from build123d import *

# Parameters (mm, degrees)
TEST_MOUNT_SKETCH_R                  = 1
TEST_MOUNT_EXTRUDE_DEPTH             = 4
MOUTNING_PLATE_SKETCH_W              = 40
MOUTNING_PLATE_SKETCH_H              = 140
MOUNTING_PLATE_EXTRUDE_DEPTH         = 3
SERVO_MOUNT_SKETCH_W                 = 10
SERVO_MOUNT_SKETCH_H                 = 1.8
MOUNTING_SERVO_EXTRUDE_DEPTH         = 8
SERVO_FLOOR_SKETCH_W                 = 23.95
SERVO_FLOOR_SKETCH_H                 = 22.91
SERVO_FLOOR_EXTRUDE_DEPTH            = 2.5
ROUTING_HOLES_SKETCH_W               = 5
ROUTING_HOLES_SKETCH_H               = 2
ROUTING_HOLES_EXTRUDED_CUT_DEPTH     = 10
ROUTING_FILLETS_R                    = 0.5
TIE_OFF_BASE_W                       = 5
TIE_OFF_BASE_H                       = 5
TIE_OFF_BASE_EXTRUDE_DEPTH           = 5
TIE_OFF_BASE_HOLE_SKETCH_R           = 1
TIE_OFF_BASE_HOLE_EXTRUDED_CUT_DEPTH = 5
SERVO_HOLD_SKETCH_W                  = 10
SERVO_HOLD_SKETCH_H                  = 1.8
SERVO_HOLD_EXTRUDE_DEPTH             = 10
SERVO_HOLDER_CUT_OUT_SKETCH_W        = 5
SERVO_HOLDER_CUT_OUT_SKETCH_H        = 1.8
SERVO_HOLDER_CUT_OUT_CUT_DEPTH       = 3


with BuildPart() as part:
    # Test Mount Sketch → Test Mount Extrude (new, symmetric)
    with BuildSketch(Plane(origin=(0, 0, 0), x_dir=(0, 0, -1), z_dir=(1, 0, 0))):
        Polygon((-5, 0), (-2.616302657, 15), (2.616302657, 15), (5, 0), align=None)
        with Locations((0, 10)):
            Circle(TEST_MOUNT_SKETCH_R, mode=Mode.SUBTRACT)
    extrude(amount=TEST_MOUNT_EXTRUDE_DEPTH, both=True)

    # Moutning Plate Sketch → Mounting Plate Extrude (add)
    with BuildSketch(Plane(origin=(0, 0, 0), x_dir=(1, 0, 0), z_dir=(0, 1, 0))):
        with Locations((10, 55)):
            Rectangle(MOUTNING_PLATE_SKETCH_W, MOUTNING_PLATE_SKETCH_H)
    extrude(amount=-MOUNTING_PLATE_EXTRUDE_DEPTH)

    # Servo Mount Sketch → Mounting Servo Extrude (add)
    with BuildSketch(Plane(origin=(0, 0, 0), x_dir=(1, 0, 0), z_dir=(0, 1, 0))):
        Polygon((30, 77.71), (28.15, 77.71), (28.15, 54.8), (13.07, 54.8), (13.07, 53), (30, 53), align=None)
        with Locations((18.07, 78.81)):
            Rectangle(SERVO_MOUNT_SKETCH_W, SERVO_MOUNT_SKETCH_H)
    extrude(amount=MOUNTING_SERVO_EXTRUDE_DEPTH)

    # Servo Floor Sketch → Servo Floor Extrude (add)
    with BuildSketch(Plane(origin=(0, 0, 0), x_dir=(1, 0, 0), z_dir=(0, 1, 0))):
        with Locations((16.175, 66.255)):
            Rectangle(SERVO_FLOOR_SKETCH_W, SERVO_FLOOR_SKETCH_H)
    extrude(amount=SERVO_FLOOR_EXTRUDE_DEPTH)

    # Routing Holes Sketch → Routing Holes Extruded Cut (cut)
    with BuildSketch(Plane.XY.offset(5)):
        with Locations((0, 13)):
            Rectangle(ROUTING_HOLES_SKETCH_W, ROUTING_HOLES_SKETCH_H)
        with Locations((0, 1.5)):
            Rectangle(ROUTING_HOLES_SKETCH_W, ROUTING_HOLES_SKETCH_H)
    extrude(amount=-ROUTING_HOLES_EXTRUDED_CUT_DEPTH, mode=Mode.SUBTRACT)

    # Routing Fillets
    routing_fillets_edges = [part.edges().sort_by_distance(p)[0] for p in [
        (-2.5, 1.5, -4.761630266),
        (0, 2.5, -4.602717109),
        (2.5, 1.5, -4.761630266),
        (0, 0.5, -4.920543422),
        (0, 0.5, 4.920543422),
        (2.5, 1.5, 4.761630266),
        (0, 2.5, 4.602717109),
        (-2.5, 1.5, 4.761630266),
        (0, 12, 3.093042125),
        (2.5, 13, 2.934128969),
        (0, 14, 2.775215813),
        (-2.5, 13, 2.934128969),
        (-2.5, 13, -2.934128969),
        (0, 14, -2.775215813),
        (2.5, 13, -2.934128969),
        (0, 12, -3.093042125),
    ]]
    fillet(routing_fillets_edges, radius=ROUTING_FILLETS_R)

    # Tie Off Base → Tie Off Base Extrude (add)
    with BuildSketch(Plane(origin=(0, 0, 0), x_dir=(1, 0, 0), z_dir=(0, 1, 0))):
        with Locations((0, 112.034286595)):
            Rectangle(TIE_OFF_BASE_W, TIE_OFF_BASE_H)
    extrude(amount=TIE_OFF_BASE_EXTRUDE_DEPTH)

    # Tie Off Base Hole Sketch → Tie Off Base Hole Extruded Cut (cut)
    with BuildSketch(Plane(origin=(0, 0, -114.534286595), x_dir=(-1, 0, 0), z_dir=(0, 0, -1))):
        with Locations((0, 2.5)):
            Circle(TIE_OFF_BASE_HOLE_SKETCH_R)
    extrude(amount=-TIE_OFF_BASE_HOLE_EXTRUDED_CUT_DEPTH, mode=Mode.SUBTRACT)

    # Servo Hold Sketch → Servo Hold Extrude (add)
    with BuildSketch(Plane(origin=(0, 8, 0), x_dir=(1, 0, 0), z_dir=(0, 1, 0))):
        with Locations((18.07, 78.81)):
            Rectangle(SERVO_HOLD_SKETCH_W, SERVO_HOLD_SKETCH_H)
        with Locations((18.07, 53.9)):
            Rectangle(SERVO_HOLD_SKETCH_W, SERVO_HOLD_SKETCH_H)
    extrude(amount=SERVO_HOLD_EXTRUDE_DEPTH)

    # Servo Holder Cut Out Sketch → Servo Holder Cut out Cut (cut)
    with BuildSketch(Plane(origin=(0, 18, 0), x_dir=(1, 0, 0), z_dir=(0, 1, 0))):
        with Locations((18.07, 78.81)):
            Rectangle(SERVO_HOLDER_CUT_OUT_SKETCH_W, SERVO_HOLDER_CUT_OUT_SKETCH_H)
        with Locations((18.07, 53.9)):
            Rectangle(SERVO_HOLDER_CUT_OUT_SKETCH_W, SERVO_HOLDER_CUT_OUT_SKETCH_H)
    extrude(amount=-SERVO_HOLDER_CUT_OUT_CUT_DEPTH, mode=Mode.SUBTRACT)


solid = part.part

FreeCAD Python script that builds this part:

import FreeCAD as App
import Part
import Sketcher
from FreeCAD import Vector


def edges_at(feature, points):
    """Names of the edges that pass closest to the given points."""
    edges = feature.Shape.Edges
    near = lambda p: min(range(len(edges)), key=lambda i: edges[i].distToShape(Part.Vertex(*p))[0])
    return sorted({f"Edge{near(p) + 1}" for p in points})

doc = App.newDocument("Part")
body = doc.addObject("PartDesign::Body", "Body")

# Sketch on YZ plane
sketch1 = body.newObject("Sketcher::SketchObject", "Sketch")
sketch1.AttachmentSupport = (doc.getObject("YZ_Plane"), [""])
sketch1.MapMode = "FlatFace"
sketch1.addGeometry(Part.LineSegment(Vector(15, 2.6, 0), Vector(0, 5, 0)), False)
sketch1.addGeometry(Part.LineSegment(Vector(0, 5, 0), Vector(0, -5, 0)), False)
sketch1.addGeometry(Part.LineSegment(Vector(0, -5, 0), Vector(15, -2.6, 0)), False)
sketch1.addGeometry(Part.LineSegment(Vector(15, -2.6, 0), Vector(15, 2.6, 0)), False)
sketch1.addGeometry(Part.Circle(Vector(10, 0, 0), Vector(0, 0, 1), 1), False)
sketch1.addConstraint(Sketcher.Constraint("Coincident", 0, 2, 1, 1))
sketch1.addConstraint(Sketcher.Constraint("Coincident", 1, 2, 2, 1))
sketch1.addConstraint(Sketcher.Constraint("Coincident", 2, 2, 3, 1))
sketch1.addConstraint(Sketcher.Constraint("Coincident", 3, 2, 0, 1))
sketch1.addConstraint(Sketcher.Constraint("Vertical", 1))
sketch1.addConstraint(Sketcher.Constraint("Vertical", 3))
sketch1.addConstraint(Sketcher.Constraint("Symmetric", 0, 2, 1, 2, -1, 1))
sketch1.addConstraint(Sketcher.Constraint("PointOnObject", 4, 3, -1))
sketch1.addConstraint(Sketcher.Constraint("Equal", 0, 2))
sketch1.addConstraint(Sketcher.Constraint("Diameter", 4, 2.0))
sketch1.addConstraint(Sketcher.Constraint("DistanceY", 1, 2, 1, 1, 10.0))
sketch1.addConstraint(Sketcher.Constraint("DistanceX", -1, 1, 4, 3, 10.0))
sketch1.addConstraint(Sketcher.Constraint("DistanceX", -1, 1, 2, 2, 15.0))
sketch1.addConstraint(Sketcher.Constraint("Distance", 0, 15.18822))
pad1 = body.newObject("PartDesign::Pad", "Pad")
pad1.Profile = sketch1
pad1.Length = 8
pad1.Midplane = True

# Sketch on XZ plane
sketch2 = body.newObject("Sketcher::SketchObject", "Sketch001")
sketch2.AttachmentSupport = (doc.getObject("XZ_Plane"), [""])
sketch2.MapMode = "FlatFace"
sketch2.addGeometry(Part.LineSegment(Vector(-10, -125, 0), Vector(-10, 15, 0)), False)
sketch2.addGeometry(Part.LineSegment(Vector(-10, 15, 0), Vector(30, 15, 0)), False)
sketch2.addGeometry(Part.LineSegment(Vector(30, 15, 0), Vector(30, -125, 0)), False)
sketch2.addGeometry(Part.LineSegment(Vector(30, -125, 0), Vector(-10, -125, 0)), False)
sketch2.addConstraint(Sketcher.Constraint("Coincident", 0, 2, 1, 1))
sketch2.addConstraint(Sketcher.Constraint("Coincident", 1, 2, 2, 1))
sketch2.addConstraint(Sketcher.Constraint("Coincident", 2, 2, 3, 1))
sketch2.addConstraint(Sketcher.Constraint("Coincident", 3, 2, 0, 1))
sketch2.addConstraint(Sketcher.Constraint("Vertical", 0))
sketch2.addConstraint(Sketcher.Constraint("Horizontal", 1))
sketch2.addConstraint(Sketcher.Constraint("Vertical", 2))
sketch2.addConstraint(Sketcher.Constraint("Horizontal", 3))
sketch2.addConstraint(Sketcher.Constraint("DistanceX", 1, 1, 1, 2, 40.0))
sketch2.addConstraint(Sketcher.Constraint("DistanceY", 0, 1, 0, 2, 140.0))
sketch2.addConstraint(Sketcher.Constraint("DistanceX", 0, 2, -1, 1, 10.0))
sketch2.addConstraint(Sketcher.Constraint("DistanceY", -1, 1, 0, 2, 15.0))
pad2 = body.newObject("PartDesign::Pad", "Pad001")
pad2.Profile = sketch2
pad2.Length = 3

# Sketch on XZ plane
sketch3 = body.newObject("Sketcher::SketchObject", "Sketch002")
sketch3.AttachmentSupport = (doc.getObject("XZ_Plane"), [""])
sketch3.MapMode = "FlatFace"
sketch3.addGeometry(Part.LineSegment(Vector(30, -77.7, 0), Vector(28.1, -77.7, 0)), False)
sketch3.addGeometry(Part.LineSegment(Vector(28.1, -77.7, 0), Vector(28.1, -54.8, 0)), False)
sketch3.addGeometry(Part.LineSegment(Vector(28.1, -54.8, 0), Vector(13.1, -54.8, 0)), False)
sketch3.addGeometry(Part.LineSegment(Vector(13.1, -54.8, 0), Vector(13.1, -53, 0)), False)
sketch3.addGeometry(Part.LineSegment(Vector(13.1, -53, 0), Vector(30, -53, 0)), False)
sketch3.addGeometry(Part.LineSegment(Vector(30, -53, 0), Vector(30, -77.7, 0)), False)
sketch3.addGeometry(Part.LineSegment(Vector(13.1, -79.7, 0), Vector(13.1, -77.9, 0)), False)
sketch3.addGeometry(Part.LineSegment(Vector(13.1, -77.9, 0), Vector(23.1, -77.9, 0)), False)
sketch3.addGeometry(Part.LineSegment(Vector(23.1, -77.9, 0), Vector(23.1, -79.7, 0)), False)
sketch3.addGeometry(Part.LineSegment(Vector(23.1, -79.7, 0), Vector(13.1, -79.7, 0)), False)
sketch3.addConstraint(Sketcher.Constraint("Coincident", 0, 2, 1, 1))
sketch3.addConstraint(Sketcher.Constraint("Coincident", 1, 2, 2, 1))
sketch3.addConstraint(Sketcher.Constraint("Coincident", 2, 2, 3, 1))
sketch3.addConstraint(Sketcher.Constraint("Coincident", 3, 2, 4, 1))
sketch3.addConstraint(Sketcher.Constraint("Coincident", 4, 2, 5, 1))
sketch3.addConstraint(Sketcher.Constraint("Coincident", 5, 2, 0, 1))
sketch3.addConstraint(Sketcher.Constraint("Coincident", 6, 2, 7, 1))
sketch3.addConstraint(Sketcher.Constraint("Coincident", 7, 2, 8, 1))
sketch3.addConstraint(Sketcher.Constraint("Coincident", 8, 2, 9, 1))
sketch3.addConstraint(Sketcher.Constraint("Coincident", 9, 2, 6, 1))
sketch3.addConstraint(Sketcher.Constraint("Horizontal", 0))
sketch3.addConstraint(Sketcher.Constraint("Vertical", 1))
sketch3.addConstraint(Sketcher.Constraint("Horizontal", 2))
sketch3.addConstraint(Sketcher.Constraint("Vertical", 3))
sketch3.addConstraint(Sketcher.Constraint("Horizontal", 4))
sketch3.addConstraint(Sketcher.Constraint("Vertical", 5))
sketch3.addConstraint(Sketcher.Constraint("Vertical", 6))
sketch3.addConstraint(Sketcher.Constraint("Horizontal", 7))
sketch3.addConstraint(Sketcher.Constraint("Vertical", 8))
sketch3.addConstraint(Sketcher.Constraint("Horizontal", 9))
sketch3.addConstraint(Sketcher.Constraint("Vertical", 3, 2, 6, 2))
sketch3.addConstraint(Sketcher.Constraint("Equal", 3, 6))
sketch3.addConstraint(Sketcher.Constraint("DistanceX", 7, 1, 7, 2, 10.0))
sketch3.addConstraint(Sketcher.Constraint("DistanceY", 3, 1, 3, 2, 1.8))
sketch3.addConstraint(Sketcher.Constraint("DistanceY", 3, 2, -1, 1, 53.0))
sketch3.addConstraint(Sketcher.Constraint("DistanceX", -1, 1, 4, 2, 30.0))
sketch3.addConstraint(Sketcher.Constraint("DistanceY", 8, 2, 0, 2, 2.0))
sketch3.addConstraint(Sketcher.Constraint("DistanceX", 0, 2, 0, 1, 1.85))
sketch3.addConstraint(Sketcher.Constraint("DistanceX", 2, 2, 2, 1, 15.08))
sketch3.addConstraint(Sketcher.Constraint("DistanceY", 1, 1, 1, 2, 22.91))
pad3 = body.newObject("PartDesign::Pad", "Pad002")
pad3.Profile = sketch3
pad3.Length = 8
pad3.Reversed = True

# Sketch on XZ plane
sketch4 = body.newObject("Sketcher::SketchObject", "Sketch003")
sketch4.AttachmentSupport = (doc.getObject("XZ_Plane"), [""])
sketch4.MapMode = "FlatFace"
sketch4.addGeometry(Part.LineSegment(Vector(4, -78, 0), Vector(4, -55, 0)), False)
sketch4.addGeometry(Part.LineSegment(Vector(4, -55, 0), Vector(28, -55, 0)), False)
sketch4.addGeometry(Part.LineSegment(Vector(28, -55, 0), Vector(28, -78, 0)), False)
sketch4.addGeometry(Part.LineSegment(Vector(28, -78, 0), Vector(4, -78, 0)), False)
sketch4.addConstraint(Sketcher.Constraint("Coincident", 0, 2, 1, 1))
sketch4.addConstraint(Sketcher.Constraint("Coincident", 1, 2, 2, 1))
sketch4.addConstraint(Sketcher.Constraint("Coincident", 2, 2, 3, 1))
sketch4.addConstraint(Sketcher.Constraint("Coincident", 3, 2, 0, 1))
sketch4.addConstraint(Sketcher.Constraint("Vertical", 0))
sketch4.addConstraint(Sketcher.Constraint("Horizontal", 1))
sketch4.addConstraint(Sketcher.Constraint("Vertical", 2))
sketch4.addConstraint(Sketcher.Constraint("Horizontal", 3))
sketch4.addConstraint(Sketcher.Constraint("DistanceX", 1, 1, 1, 2, 23.95))
sketch4.addConstraint(Sketcher.Constraint("DistanceY", 0, 1, 0, 2, 22.91))
sketch4.addConstraint(Sketcher.Constraint("DistanceX", -1, 1, 0, 2, 4.2))
sketch4.addConstraint(Sketcher.Constraint("DistanceY", 0, 2, -1, 1, 54.8))
pad4 = body.newObject("PartDesign::Pad", "Pad003")
pad4.Profile = sketch4
pad4.Length = 2.5
pad4.Reversed = True

# Sketch on XY plane
sketch5 = body.newObject("Sketcher::SketchObject", "Sketch004")
sketch5.AttachmentSupport = (doc.getObject("XY_Plane"), [""])
sketch5.MapMode = "FlatFace"
sketch5.AttachmentOffset = App.Placement(Vector(0, 0, 5), App.Rotation())
sketch5.addGeometry(Part.LineSegment(Vector(-2.5, 14, 0), Vector(-2.5, 12, 0)), False)
sketch5.addGeometry(Part.LineSegment(Vector(-2.5, 12, 0), Vector(2.5, 12, 0)), False)
sketch5.addGeometry(Part.LineSegment(Vector(2.5, 12, 0), Vector(2.5, 14, 0)), False)
sketch5.addGeometry(Part.LineSegment(Vector(2.5, 14, 0), Vector(-2.5, 14, 0)), False)
sketch5.addGeometry(Part.LineSegment(Vector(-2.5, 2.5, 0), Vector(-2.5, 0.5, 0)), False)
sketch5.addGeometry(Part.LineSegment(Vector(-2.5, 0.5, 0), Vector(2.5, 0.5, 0)), False)
sketch5.addGeometry(Part.LineSegment(Vector(2.5, 0.5, 0), Vector(2.5, 2.5, 0)), False)
sketch5.addGeometry(Part.LineSegment(Vector(2.5, 2.5, 0), Vector(-2.5, 2.5, 0)), False)
sketch5.addConstraint(Sketcher.Constraint("Coincident", 0, 2, 1, 1))
sketch5.addConstraint(Sketcher.Constraint("Coincident", 1, 2, 2, 1))
sketch5.addConstraint(Sketcher.Constraint("Coincident", 2, 2, 3, 1))
sketch5.addConstraint(Sketcher.Constraint("Coincident", 3, 2, 0, 1))
sketch5.addConstraint(Sketcher.Constraint("Coincident", 4, 2, 5, 1))
sketch5.addConstraint(Sketcher.Constraint("Coincident", 5, 2, 6, 1))
sketch5.addConstraint(Sketcher.Constraint("Coincident", 6, 2, 7, 1))
sketch5.addConstraint(Sketcher.Constraint("Coincident", 7, 2, 4, 1))
sketch5.addConstraint(Sketcher.Constraint("Vertical", 0))
sketch5.addConstraint(Sketcher.Constraint("Horizontal", 1))
sketch5.addConstraint(Sketcher.Constraint("Vertical", 2))
sketch5.addConstraint(Sketcher.Constraint("Horizontal", 3))
sketch5.addConstraint(Sketcher.Constraint("Vertical", 4))
sketch5.addConstraint(Sketcher.Constraint("Horizontal", 5))
sketch5.addConstraint(Sketcher.Constraint("Vertical", 6))
sketch5.addConstraint(Sketcher.Constraint("Horizontal", 7))
sketch5.addConstraint(Sketcher.Constraint("Vertical", 3, 2, 4, 2))
sketch5.addConstraint(Sketcher.Constraint("Vertical", 2, 2, 5, 2))
sketch5.addConstraint(Sketcher.Constraint("Equal", 2, 4))
sketch5.addConstraint(Sketcher.Constraint("DistanceX", 1, 1, 1, 2, 5.0))
sketch5.addConstraint(Sketcher.Constraint("DistanceY", 0, 2, 0, 1, 2.0))
sketch5.addConstraint(Sketcher.Constraint("DistanceY", -1, 1, 0, 2, 12.0))
sketch5.addConstraint(Sketcher.Constraint("DistanceX", 0, 2, -1, 1, 2.5))
sketch5.addConstraint(Sketcher.Constraint("DistanceY", -1, 1, 4, 2, 0.5))
pocket1 = body.newObject("PartDesign::Pocket", "Pocket")
pocket1.Profile = sketch5
pocket1.Length = 10
doc.recompute()

fillet = body.newObject("PartDesign::Fillet", "Fillet")
fillet.Base = (pocket1, edges_at(pocket1, [
    (-2.5, 1.5, -4.762),
    (0, 2.5, -4.603),
    (2.5, 1.5, -4.762),
    (0, 0.5, -4.921),
    (0, 0.5, 4.921),
    (2.5, 1.5, 4.762),
    (0, 2.5, 4.603),
    (-2.5, 1.5, 4.762),
    (0, 12, 3.093),
    (2.5, 13, 2.934),
    (0, 14, 2.775),
    (-2.5, 13, 2.934),
    (-2.5, 13, -2.934),
    (0, 14, -2.775),
    (2.5, 13, -2.934),
    (0, 12, -3.093),
]))
fillet.Radius = 0.5

# Sketch on XZ plane
sketch6 = body.newObject("Sketcher::SketchObject", "Sketch005")
sketch6.AttachmentSupport = (doc.getObject("XZ_Plane"), [""])
sketch6.MapMode = "FlatFace"
sketch6.addGeometry(Part.LineSegment(Vector(-2, -115, 0), Vector(-2, -110, 0)), False)
sketch6.addGeometry(Part.LineSegment(Vector(-2, -110, 0), Vector(2, -110, 0)), False)
sketch6.addGeometry(Part.LineSegment(Vector(2, -110, 0), Vector(2, -115, 0)), False)
sketch6.addGeometry(Part.LineSegment(Vector(2, -115, 0), Vector(-2, -115, 0)), False)
sketch6.addConstraint(Sketcher.Constraint("Coincident", 0, 2, 1, 1))
sketch6.addConstraint(Sketcher.Constraint("Coincident", 1, 2, 2, 1))
sketch6.addConstraint(Sketcher.Constraint("Coincident", 2, 2, 3, 1))
sketch6.addConstraint(Sketcher.Constraint("Coincident", 3, 2, 0, 1))
sketch6.addConstraint(Sketcher.Constraint("Vertical", 0))
sketch6.addConstraint(Sketcher.Constraint("Horizontal", 1))
sketch6.addConstraint(Sketcher.Constraint("Vertical", 2))
sketch6.addConstraint(Sketcher.Constraint("Horizontal", 3))
sketch6.addConstraint(Sketcher.Constraint("Equal", 3, 0))
sketch6.addConstraint(Sketcher.Constraint("DistanceX", 1, 1, 1, 2, 5.0))
sketch6.addConstraint(Sketcher.Constraint("DistanceX", 0, 2, -1, 1, 2.5))
sketch6.addConstraint(Sketcher.Constraint("DistanceY", 0, 2, -1, 1, 109.534287))
pad5 = body.newObject("PartDesign::Pad", "Pad004")
pad5.Profile = sketch6
pad5.Length = 5
pad5.Reversed = True

# Sketch on XY plane
sketch7 = body.newObject("Sketcher::SketchObject", "Sketch006")
sketch7.AttachmentSupport = (doc.getObject("XY_Plane"), [""])
sketch7.MapMode = "FlatFace"
sketch7.AttachmentOffset = App.Placement(Vector(0, 0, -114.534287), App.Rotation())
sketch7.addGeometry(Part.Circle(Vector(0, 2.5, 0), Vector(0, 0, 1), 1), False)
sketch7.addConstraint(Sketcher.Constraint("PointOnObject", 0, 3, -2))
sketch7.addConstraint(Sketcher.Constraint("Diameter", 0, 2.0))
sketch7.addConstraint(Sketcher.Constraint("DistanceY", -1, 1, 0, 3, 2.5))
pocket2 = body.newObject("PartDesign::Pocket", "Pocket001")
pocket2.Profile = sketch7
pocket2.Length = 5
pocket2.Reversed = True

# Sketch on XZ plane
sketch8 = body.newObject("Sketcher::SketchObject", "Sketch007")
sketch8.AttachmentSupport = (doc.getObject("XZ_Plane"), [""])
sketch8.MapMode = "FlatFace"
sketch8.AttachmentOffset = App.Placement(Vector(0, 0, -8), App.Rotation())
sketch8.addGeometry(Part.LineSegment(Vector(13.1, -79.7, 0), Vector(13.1, -77.9, 0)), False)
sketch8.addGeometry(Part.LineSegment(Vector(13.1, -77.9, 0), Vector(23.1, -77.9, 0)), False)
sketch8.addGeometry(Part.LineSegment(Vector(23.1, -77.9, 0), Vector(23.1, -79.7, 0)), False)
sketch8.addGeometry(Part.LineSegment(Vector(23.1, -79.7, 0), Vector(13.1, -79.7, 0)), False)
sketch8.addGeometry(Part.LineSegment(Vector(13.1, -54.8, 0), Vector(13.1, -53, 0)), False)
sketch8.addGeometry(Part.LineSegment(Vector(13.1, -53, 0), Vector(23.1, -53, 0)), False)
sketch8.addGeometry(Part.LineSegment(Vector(23.1, -53, 0), Vector(23.1, -54.8, 0)), False)
sketch8.addGeometry(Part.LineSegment(Vector(23.1, -54.8, 0), Vector(13.1, -54.8, 0)), False)
sketch8.addConstraint(Sketcher.Constraint("Coincident", 0, 2, 1, 1))
sketch8.addConstraint(Sketcher.Constraint("Coincident", 1, 2, 2, 1))
sketch8.addConstraint(Sketcher.Constraint("Coincident", 2, 2, 3, 1))
sketch8.addConstraint(Sketcher.Constraint("Coincident", 3, 2, 0, 1))
sketch8.addConstraint(Sketcher.Constraint("Coincident", 4, 2, 5, 1))
sketch8.addConstraint(Sketcher.Constraint("Coincident", 5, 2, 6, 1))
sketch8.addConstraint(Sketcher.Constraint("Coincident", 6, 2, 7, 1))
sketch8.addConstraint(Sketcher.Constraint("Coincident", 7, 2, 4, 1))
sketch8.addConstraint(Sketcher.Constraint("Vertical", 0))
sketch8.addConstraint(Sketcher.Constraint("Horizontal", 1))
sketch8.addConstraint(Sketcher.Constraint("Vertical", 2))
sketch8.addConstraint(Sketcher.Constraint("Horizontal", 3))
sketch8.addConstraint(Sketcher.Constraint("Vertical", 4))
sketch8.addConstraint(Sketcher.Constraint("Horizontal", 5))
sketch8.addConstraint(Sketcher.Constraint("Vertical", 6))
sketch8.addConstraint(Sketcher.Constraint("Horizontal", 7))
sketch8.addConstraint(Sketcher.Constraint("Vertical", 3, 2, 4, 2))
sketch8.addConstraint(Sketcher.Constraint("Vertical", 2, 2, 5, 2))
sketch8.addConstraint(Sketcher.Constraint("Equal", 2, 4))
sketch8.addConstraint(Sketcher.Constraint("DistanceX", 1, 1, 1, 2, 10.0))
sketch8.addConstraint(Sketcher.Constraint("DistanceY", 0, 1, 0, 2, 1.8))
sketch8.addConstraint(Sketcher.Constraint("DistanceY", 4, 2, -1, 1, 53.0))
sketch8.addConstraint(Sketcher.Constraint("DistanceX", -1, 1, 0, 2, 13.07))
sketch8.addConstraint(Sketcher.Constraint("DistanceY", 0, 2, -1, 1, 77.91))
pad6 = body.newObject("PartDesign::Pad", "Pad005")
pad6.Profile = sketch8
pad6.Length = 10
pad6.Reversed = True

# Sketch on XZ plane
sketch9 = body.newObject("Sketcher::SketchObject", "Sketch008")
sketch9.AttachmentSupport = (doc.getObject("XZ_Plane"), [""])
sketch9.MapMode = "FlatFace"
sketch9.AttachmentOffset = App.Placement(Vector(0, 0, -18), App.Rotation())
sketch9.addGeometry(Part.LineSegment(Vector(15.6, -79.7, 0), Vector(15.6, -77.9, 0)), False)
sketch9.addGeometry(Part.LineSegment(Vector(15.6, -77.9, 0), Vector(20.6, -77.9, 0)), False)
sketch9.addGeometry(Part.LineSegment(Vector(20.6, -77.9, 0), Vector(20.6, -79.7, 0)), False)
sketch9.addGeometry(Part.LineSegment(Vector(20.6, -79.7, 0), Vector(15.6, -79.7, 0)), False)
sketch9.addGeometry(Part.LineSegment(Vector(15.6, -54.8, 0), Vector(15.6, -53, 0)), False)
sketch9.addGeometry(Part.LineSegment(Vector(15.6, -53, 0), Vector(20.6, -53, 0)), False)
sketch9.addGeometry(Part.LineSegment(Vector(20.6, -53, 0), Vector(20.6, -54.8, 0)), False)
sketch9.addGeometry(Part.LineSegment(Vector(20.6, -54.8, 0), Vector(15.6, -54.8, 0)), False)
sketch9.addConstraint(Sketcher.Constraint("Coincident", 0, 2, 1, 1))
sketch9.addConstraint(Sketcher.Constraint("Coincident", 1, 2, 2, 1))
sketch9.addConstraint(Sketcher.Constraint("Coincident", 2, 2, 3, 1))
sketch9.addConstraint(Sketcher.Constraint("Coincident", 3, 2, 0, 1))
sketch9.addConstraint(Sketcher.Constraint("Coincident", 4, 2, 5, 1))
sketch9.addConstraint(Sketcher.Constraint("Coincident", 5, 2, 6, 1))
sketch9.addConstraint(Sketcher.Constraint("Coincident", 6, 2, 7, 1))
sketch9.addConstraint(Sketcher.Constraint("Coincident", 7, 2, 4, 1))
sketch9.addConstraint(Sketcher.Constraint("Vertical", 0))
sketch9.addConstraint(Sketcher.Constraint("Horizontal", 1))
sketch9.addConstraint(Sketcher.Constraint("Vertical", 2))
sketch9.addConstraint(Sketcher.Constraint("Horizontal", 3))
sketch9.addConstraint(Sketcher.Constraint("Vertical", 4))
sketch9.addConstraint(Sketcher.Constraint("Horizontal", 5))
sketch9.addConstraint(Sketcher.Constraint("Vertical", 6))
sketch9.addConstraint(Sketcher.Constraint("Horizontal", 7))
sketch9.addConstraint(Sketcher.Constraint("Vertical", 3, 2, 4, 2))
sketch9.addConstraint(Sketcher.Constraint("Vertical", 2, 2, 5, 2))
sketch9.addConstraint(Sketcher.Constraint("Equal", 2, 4))
sketch9.addConstraint(Sketcher.Constraint("DistanceX", 1, 1, 1, 2, 5.0))
sketch9.addConstraint(Sketcher.Constraint("DistanceY", 0, 1, 0, 2, 1.8))
sketch9.addConstraint(Sketcher.Constraint("DistanceY", 4, 2, -1, 1, 53.0))
sketch9.addConstraint(Sketcher.Constraint("DistanceX", -1, 1, 0, 2, 15.57))
sketch9.addConstraint(Sketcher.Constraint("DistanceY", 0, 2, -1, 1, 77.91))
pocket3 = body.newObject("PartDesign::Pocket", "Pocket002")
pocket3.Profile = sketch9
pocket3.Length = 3
pocket3.Reversed = True

doc.recompute()
